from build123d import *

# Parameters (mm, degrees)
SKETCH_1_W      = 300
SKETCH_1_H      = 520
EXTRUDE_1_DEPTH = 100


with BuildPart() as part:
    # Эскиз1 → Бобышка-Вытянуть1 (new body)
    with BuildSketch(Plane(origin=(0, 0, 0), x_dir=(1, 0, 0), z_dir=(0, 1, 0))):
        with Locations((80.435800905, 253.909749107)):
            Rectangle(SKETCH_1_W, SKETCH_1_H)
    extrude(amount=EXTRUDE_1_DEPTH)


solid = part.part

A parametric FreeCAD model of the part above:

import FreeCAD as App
import Part
import Sketcher

doc = App.newDocument("Part")
body = doc.addObject("PartDesign::Body", "Body")

# Sketch on XZ plane
sketch1 = doc.addObject("Sketcher::SketchObject", "Sketch")
body.addObject(sketch1)
sketch1.AttachmentSupport = (doc.XZ_Plane, [""])
sketch1.MapMode = "FlatFace"
sketch1.addGeometry([
    Part.LineSegment(App.Vector(-69.564199, -513.909749, 0), App.Vector(-69.564199, 6.090251, 0)),
    Part.LineSegment(App.Vector(-69.564199, 6.090251, 0), App.Vector(230.435801, 6.090251, 0)),
    Part.LineSegment(App.Vector(230.435801, 6.090251, 0), App.Vector(230.435801, -513.909749, 0)),
    Part.LineSegment(App.Vector(230.435801, -513.909749, 0), App.Vector(-69.564199, -513.909749, 0)),
], False)
sketch1.addConstraint([
    Sketcher.Constraint("Coincident", 0, 2, 1, 1),
    Sketcher.Constraint("Coincident", 1, 2, 2, 1),
    Sketcher.Constraint("Coincident", 2, 2, 3, 1),
    Sketcher.Constraint("Coincident", 3, 2, 0, 1),
    Sketcher.Constraint("Vertical", 0),
    Sketcher.Constraint("Horizontal", 1),
    Sketcher.Constraint("Vertical", 2),
    Sketcher.Constraint("Horizontal", 3),
    Sketcher.Constraint("DistanceX", 1, 1, 1, 2, 300.0),
    Sketcher.Constraint("DistanceY", 0, 1, 0, 2, 520.0),
    Sketcher.Constraint("DistanceX", 0, 2, -1, 1, 69.564199),
    Sketcher.Constraint("DistanceY", -1, 1, 0, 2, 6.090251),
])
pad1 = doc.addObject("PartDesign::Pad", "Pad")
body.addObject(pad1)
pad1.Profile = sketch1
pad1.Length = 100
pad1.Reversed = True

doc.recompute()
